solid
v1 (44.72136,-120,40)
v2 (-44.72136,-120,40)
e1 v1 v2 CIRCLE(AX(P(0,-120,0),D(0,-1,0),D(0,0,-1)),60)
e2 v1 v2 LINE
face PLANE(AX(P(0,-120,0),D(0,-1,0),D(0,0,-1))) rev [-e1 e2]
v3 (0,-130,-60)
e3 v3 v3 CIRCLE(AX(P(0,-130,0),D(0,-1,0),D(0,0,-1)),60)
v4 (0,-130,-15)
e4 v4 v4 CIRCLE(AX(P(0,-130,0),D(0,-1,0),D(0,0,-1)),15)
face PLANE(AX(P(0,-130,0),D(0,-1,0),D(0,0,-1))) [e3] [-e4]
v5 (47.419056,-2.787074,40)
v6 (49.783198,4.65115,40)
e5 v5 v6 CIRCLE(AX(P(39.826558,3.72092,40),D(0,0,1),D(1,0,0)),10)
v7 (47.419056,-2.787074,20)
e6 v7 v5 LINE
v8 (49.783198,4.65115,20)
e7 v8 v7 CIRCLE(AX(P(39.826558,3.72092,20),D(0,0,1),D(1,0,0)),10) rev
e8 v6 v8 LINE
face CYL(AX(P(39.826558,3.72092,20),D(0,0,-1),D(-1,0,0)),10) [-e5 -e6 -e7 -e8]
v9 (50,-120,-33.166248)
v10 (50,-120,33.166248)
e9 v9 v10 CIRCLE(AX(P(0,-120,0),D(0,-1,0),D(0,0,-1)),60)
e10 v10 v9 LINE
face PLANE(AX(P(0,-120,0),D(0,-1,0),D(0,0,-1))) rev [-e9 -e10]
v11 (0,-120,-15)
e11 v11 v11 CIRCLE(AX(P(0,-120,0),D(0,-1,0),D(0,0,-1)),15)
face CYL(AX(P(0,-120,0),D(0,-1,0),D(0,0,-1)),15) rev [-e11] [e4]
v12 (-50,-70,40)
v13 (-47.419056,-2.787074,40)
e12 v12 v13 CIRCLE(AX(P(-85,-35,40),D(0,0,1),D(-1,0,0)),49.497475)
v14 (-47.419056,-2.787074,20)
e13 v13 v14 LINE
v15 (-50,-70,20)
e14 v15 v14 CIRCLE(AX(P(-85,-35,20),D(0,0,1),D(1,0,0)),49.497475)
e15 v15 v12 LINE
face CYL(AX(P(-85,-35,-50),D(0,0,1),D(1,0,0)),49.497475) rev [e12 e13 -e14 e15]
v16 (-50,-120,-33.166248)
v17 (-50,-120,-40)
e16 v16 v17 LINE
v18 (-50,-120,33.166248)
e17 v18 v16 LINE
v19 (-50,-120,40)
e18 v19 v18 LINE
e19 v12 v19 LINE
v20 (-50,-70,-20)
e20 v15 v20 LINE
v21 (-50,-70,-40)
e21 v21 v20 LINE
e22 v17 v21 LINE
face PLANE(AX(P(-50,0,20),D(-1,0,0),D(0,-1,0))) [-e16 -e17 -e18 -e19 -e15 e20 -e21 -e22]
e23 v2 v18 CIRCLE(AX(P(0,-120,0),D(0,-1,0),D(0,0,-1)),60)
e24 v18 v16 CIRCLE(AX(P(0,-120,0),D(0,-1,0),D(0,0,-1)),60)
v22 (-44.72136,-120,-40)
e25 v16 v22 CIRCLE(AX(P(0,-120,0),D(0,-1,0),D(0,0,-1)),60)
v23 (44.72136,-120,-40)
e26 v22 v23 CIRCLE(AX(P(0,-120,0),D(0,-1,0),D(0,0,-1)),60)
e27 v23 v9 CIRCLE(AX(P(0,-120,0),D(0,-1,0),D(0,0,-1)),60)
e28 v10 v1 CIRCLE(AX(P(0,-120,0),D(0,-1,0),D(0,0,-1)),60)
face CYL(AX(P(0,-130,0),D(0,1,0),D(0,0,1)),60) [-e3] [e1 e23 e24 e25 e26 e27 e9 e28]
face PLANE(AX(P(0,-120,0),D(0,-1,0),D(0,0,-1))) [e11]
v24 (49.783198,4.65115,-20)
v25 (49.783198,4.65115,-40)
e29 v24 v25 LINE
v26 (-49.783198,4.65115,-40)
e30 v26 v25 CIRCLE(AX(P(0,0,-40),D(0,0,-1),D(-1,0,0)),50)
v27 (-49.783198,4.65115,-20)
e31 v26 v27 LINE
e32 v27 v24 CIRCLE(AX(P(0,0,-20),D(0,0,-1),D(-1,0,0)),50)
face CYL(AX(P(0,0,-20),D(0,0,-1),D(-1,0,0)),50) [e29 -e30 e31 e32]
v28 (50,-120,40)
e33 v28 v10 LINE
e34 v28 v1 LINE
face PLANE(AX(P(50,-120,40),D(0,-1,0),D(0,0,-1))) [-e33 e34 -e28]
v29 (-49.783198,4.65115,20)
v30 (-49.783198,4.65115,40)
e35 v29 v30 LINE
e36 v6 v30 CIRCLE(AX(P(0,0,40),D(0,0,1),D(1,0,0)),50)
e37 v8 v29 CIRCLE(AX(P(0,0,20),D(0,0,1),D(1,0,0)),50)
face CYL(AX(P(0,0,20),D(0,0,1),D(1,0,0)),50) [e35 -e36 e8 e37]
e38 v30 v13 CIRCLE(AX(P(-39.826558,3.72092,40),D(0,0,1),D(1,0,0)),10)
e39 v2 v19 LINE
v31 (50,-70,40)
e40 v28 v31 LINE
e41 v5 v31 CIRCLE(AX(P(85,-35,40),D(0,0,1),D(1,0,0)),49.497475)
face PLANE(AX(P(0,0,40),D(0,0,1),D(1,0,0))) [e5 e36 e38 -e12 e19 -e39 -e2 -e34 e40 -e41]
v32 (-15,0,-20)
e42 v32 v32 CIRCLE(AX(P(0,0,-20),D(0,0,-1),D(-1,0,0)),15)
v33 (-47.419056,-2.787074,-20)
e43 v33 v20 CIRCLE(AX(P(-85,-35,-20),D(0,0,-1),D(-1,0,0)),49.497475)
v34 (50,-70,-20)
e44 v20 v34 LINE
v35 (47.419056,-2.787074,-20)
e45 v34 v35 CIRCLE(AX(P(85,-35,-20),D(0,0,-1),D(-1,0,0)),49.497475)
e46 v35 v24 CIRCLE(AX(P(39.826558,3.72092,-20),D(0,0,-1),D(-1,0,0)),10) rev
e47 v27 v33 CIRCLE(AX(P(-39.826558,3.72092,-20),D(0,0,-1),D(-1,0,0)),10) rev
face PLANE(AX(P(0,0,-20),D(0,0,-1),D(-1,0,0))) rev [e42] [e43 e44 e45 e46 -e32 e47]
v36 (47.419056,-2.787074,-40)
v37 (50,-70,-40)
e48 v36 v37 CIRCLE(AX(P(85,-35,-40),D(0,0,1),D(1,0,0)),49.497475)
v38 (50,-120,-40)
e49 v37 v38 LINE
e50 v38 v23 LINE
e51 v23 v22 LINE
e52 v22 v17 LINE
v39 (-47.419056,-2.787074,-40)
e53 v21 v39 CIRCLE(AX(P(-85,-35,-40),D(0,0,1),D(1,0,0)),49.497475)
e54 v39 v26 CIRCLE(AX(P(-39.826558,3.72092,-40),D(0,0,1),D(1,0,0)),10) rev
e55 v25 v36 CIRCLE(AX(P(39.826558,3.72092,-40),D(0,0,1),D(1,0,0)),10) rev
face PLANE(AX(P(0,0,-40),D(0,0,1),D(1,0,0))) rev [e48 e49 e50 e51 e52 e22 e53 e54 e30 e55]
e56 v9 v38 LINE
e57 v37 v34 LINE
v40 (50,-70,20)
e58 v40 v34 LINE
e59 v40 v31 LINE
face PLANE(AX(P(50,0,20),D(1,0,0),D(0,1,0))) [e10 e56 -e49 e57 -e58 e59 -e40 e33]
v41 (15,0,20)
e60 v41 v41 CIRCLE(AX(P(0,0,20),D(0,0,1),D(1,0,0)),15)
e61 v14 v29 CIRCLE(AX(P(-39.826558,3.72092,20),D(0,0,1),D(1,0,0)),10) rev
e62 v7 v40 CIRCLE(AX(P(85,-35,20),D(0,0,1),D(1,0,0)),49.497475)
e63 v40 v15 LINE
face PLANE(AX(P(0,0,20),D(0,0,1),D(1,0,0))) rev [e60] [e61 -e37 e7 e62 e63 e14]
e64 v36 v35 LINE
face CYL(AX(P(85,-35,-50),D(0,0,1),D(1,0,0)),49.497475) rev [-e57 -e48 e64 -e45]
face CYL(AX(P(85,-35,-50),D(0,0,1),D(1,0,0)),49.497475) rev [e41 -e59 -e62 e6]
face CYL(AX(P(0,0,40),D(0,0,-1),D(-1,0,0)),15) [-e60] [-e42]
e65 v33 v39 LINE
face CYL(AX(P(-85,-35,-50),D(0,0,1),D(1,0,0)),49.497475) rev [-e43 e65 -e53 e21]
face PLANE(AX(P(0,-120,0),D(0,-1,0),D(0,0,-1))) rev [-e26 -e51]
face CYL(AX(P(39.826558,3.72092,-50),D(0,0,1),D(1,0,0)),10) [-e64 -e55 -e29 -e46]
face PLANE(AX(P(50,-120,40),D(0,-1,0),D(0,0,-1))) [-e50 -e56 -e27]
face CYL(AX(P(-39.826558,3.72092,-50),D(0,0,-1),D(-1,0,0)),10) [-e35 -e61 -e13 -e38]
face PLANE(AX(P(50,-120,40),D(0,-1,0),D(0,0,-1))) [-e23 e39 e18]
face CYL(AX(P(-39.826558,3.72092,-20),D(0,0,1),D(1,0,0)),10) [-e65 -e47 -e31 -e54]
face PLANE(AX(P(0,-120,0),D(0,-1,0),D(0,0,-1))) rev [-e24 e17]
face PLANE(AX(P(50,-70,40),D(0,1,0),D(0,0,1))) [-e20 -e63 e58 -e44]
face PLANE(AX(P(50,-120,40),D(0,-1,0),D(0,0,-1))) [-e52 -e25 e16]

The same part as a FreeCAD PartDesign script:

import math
import FreeCAD as App
import Part
import Sketcher
from FreeCAD import Vector
Q = App.Units.Quantity


def edges_at(feature, points):
    """Names of the edges that pass closest to the given points."""
    edges = feature.Shape.Edges
    near = lambda p: min(range(len(edges)), key=lambda i: edges[i].distToShape(Part.Vertex(*p))[0])
    return sorted({f"Edge{near(p) + 1}" for p in points})


def add_polygon(sketch, points):
    """Adds a closed chain of lines whose ends are joined by coincident constraints."""
    first, n = sketch.GeometryCount, len(points)
    for a, b in zip(points, points[1:] + points[:1]):
        sketch.addGeometry(Part.LineSegment(App.Vector(*a, 0), App.Vector(*b, 0)), False)
    for i in range(n):
        sketch.addConstraint(Sketcher.Constraint("Coincident", first + i, 2, first + (i + 1) % n, 1))

doc = App.newDocument("Part")
body = doc.addObject("PartDesign::Body", "Body")

sketch1 = doc.addObject("Sketcher::SketchObject", "Sketch")
body.addObject(sketch1)
sketch1.AttachmentSupport = (doc.XY_Plane, [""])
sketch1.MapMode = "FlatFace"
sketch1.addGeometry(Part.Circle(Vector(0, 0, 0), Vector(0, 0, 1), 15), False)
sketch1.addConstraint([
    Sketcher.Constraint("Coincident", 0, 3, -1, 1),
    Sketcher.Constraint("Diameter", 0, Q("30 mm")),
])
pad1 = doc.addObject("PartDesign::Pad", "Pad")
body.addObject(pad1)
pad1.Profile = sketch1
pad1.Length = 80
pad1.Midplane = True

sketch2 = doc.addObject("Sketcher::SketchObject", "Sketch001")
body.addObject(sketch2)
sketch2.AttachmentSupport = (doc.XY_Plane, [""])
sketch2.MapMode = "FlatFace"
sketch2.AttachmentOffset = App.Placement(Vector(0, 0, 40), App.Rotation())
sketch2.addGeometry([
    Part.LineSegment(Vector(50, -70, 0), Vector(50, 0, 0)),
    Part.ArcOfCircle(Part.Circle(Vector(0, 0, 0), Vector(0, 0, 1), 50), math.radians(0), math.radians(180)),
    Part.LineSegment(Vector(-50, 0, 0), Vector(-50, -70, 0)),
    Part.ArcOfCircle(Part.Circle(Vector(0, -70, 0), Vector(0, 0, 1), 50), math.radians(180), math.radians(360)),
], False)
sketch2.addConstraint([
    Sketcher.Constraint("Tangent", 0, 2, 1, 1),
    Sketcher.Constraint("Tangent", 1, 2, 2, 1),
    Sketcher.Constraint("Tangent", 2, 2, 3, 1),
    Sketcher.Constraint("Tangent", 3, 2, 0, 1),
    Sketcher.Constraint("Vertical", 0),
    Sketcher.Constraint("Vertical", 2),
    Sketcher.Constraint("Coincident", 1, 3, -1, 1),
    Sketcher.Constraint("Radius", 1, Q("50 mm")),
    Sketcher.Constraint("DistanceY", 0, 1, 0, 2, Q("70 mm")),
])
pad2 = doc.addObject("PartDesign::Pad", "Pad001")
body.addObject(pad2)
pad2.Profile = sketch2
pad2.Length = 20
pad2.Reversed = True

sketch3 = doc.addObject("Sketcher::SketchObject", "Sketch002")
body.addObject(sketch3)
sketch3.AttachmentSupport = (doc.XY_Plane, [""])
sketch3.MapMode = "FlatFace"
sketch3.AttachmentOffset = App.Placement(Vector(0, 0, -20), App.Rotation())
sketch3.addGeometry([
    Part.LineSegment(Vector(-50, -70, 0), Vector(-50, 0, 0)),
    Part.ArcOfCircle(Part.Circle(Vector(0, 0, 0), Vector(0, 0, 1), 50), math.radians(0), math.radians(180)),
    Part.LineSegment(Vector(50, 0, 0), Vector(50, -70, 0)),
    Part.ArcOfCircle(Part.Circle(Vector(0, -70, 0), Vector(0, 0, 1), 50), math.radians(180), math.radians(360)),
], False)
sketch3.addConstraint([
    Sketcher.Constraint("Tangent", 0, 2, 1, 2),
    Sketcher.Constraint("Tangent", 1, 1, 2, 1),
    Sketcher.Constraint("Tangent", 2, 2, 3, 2),
    Sketcher.Constraint("Tangent", 3, 1, 0, 1),
    Sketcher.Constraint("Vertical", 0),
    Sketcher.Constraint("Vertical", 2),
    Sketcher.Constraint("Coincident", 1, 3, -1, 1),
    Sketcher.Constraint("Radius", 1, Q("50 mm")),
    Sketcher.Constraint("DistanceY", 0, 1, 0, 2, Q("70 mm")),
])
pad3 = doc.addObject("PartDesign::Pad", "Pad002")
body.addObject(pad3)
pad3.Profile = sketch3
pad3.Length = 20
pad3.Reversed = True

sketch4 = doc.addObject("Sketcher::SketchObject", "Sketch003")
body.addObject(sketch4)
sketch4.AttachmentSupport = (doc.XY_Plane, [""])
sketch4.MapMode = "FlatFace"
sketch4.AttachmentOffset = App.Placement(Vector(0, 0, -40), App.Rotation())
add_polygon(sketch4, [(50, -70), (50, -120), (-50, -120), (-50, -70)])
sketch4.addConstraint([
    Sketcher.Constraint("Vertical", 0),
    Sketcher.Constraint("Horizontal", 1),
    Sketcher.Constraint("Vertical", 2),
    Sketcher.Constraint("Horizontal", 3),
    Sketcher.Constraint("DistanceX", 1, 2, 1, 1, Q("100 mm")),
    Sketcher.Constraint("DistanceY", 0, 2, 0, 1, Q("50 mm")),
    Sketcher.Constraint("DistanceX", -1, 1, 0, 2, Q("50 mm")),
    Sketcher.Constraint("DistanceY", 0, 2, -1, 1, Q("120 mm")),
])
pad4 = doc.addObject("PartDesign::Pad", "Pad003")
body.addObject(pad4)
pad4.Profile = sketch4
pad4.Length = 80

sketch5 = doc.addObject("Sketcher::SketchObject", "Sketch004")
body.addObject(sketch5)
sketch5.AttachmentSupport = (doc.XZ_Plane, [""])
sketch5.MapMode = "FlatFace"
sketch5.AttachmentOffset = App.Placement(Vector(0, 0, 120), App.Rotation())
sketch5.addGeometry(Part.Circle(Vector(0, 0, 0), Vector(0, 0, 1), 60), False)
sketch5.addConstraint([
    Sketcher.Constraint("Coincident", 0, 3, -1, 1),
    Sketcher.Constraint("Diameter", 0, Q("120 mm")),
])
pad5 = doc.addObject("PartDesign::Pad", "Pad004")
body.addObject(pad5)
pad5.Profile = sketch5
pad5.Length = 10

sketch6 = doc.addObject("Sketcher::SketchObject", "Sketch005")
body.addObject(sketch6)
sketch6.AttachmentSupport = (doc.XZ_Plane, [""])
sketch6.MapMode = "FlatFace"
sketch6.AttachmentOffset = App.Placement(Vector(0, 0, 130), App.Rotation())
sketch6.addGeometry(Part.Circle(Vector(0, 0, 0), Vector(0, 0, 1), 15), False)
sketch6.addConstraint([
    Sketcher.Constraint("Coincident", 0, 3, -1, 1),
    Sketcher.Constraint("Diameter", 0, Q("30 mm")),
])
pocket1 = doc.addObject("PartDesign::Pocket", "Pocket")
body.addObject(pocket1)
pocket1.Profile = sketch6
pocket1.Length = 10

sketch7 = doc.addObject("Sketcher::SketchObject", "Sketch006")
body.addObject(sketch7)
sketch7.AttachmentSupport = (doc.XY_Plane, [""])
sketch7.MapMode = "FlatFace"
sketch7.AttachmentOffset = App.Placement(Vector(0, 0, 40), App.Rotation())
sketch7.addGeometry([
    Part.LineSegment(Vector(-50, 0, 0), Vector(-50, -70, 0)),
    Part.ArcOfCircle(Part.Circle(Vector(-85, -35, 0), Vector(0, 0, 1), 49.497475), math.radians(-45), math.radians(45)),
], False)
sketch7.addConstraint([
    Sketcher.Constraint("Coincident", 0, 1, 1, 2),
    Sketcher.Constraint("Coincident", 1, 1, 0, 2),
    Sketcher.Constraint("Vertical", 0),
    Sketcher.Constraint("PointOnObject", 0, 1, -1),
    Sketcher.Constraint("DistanceY", 0, 2, 0, 1, Q("70 mm")),
    Sketcher.Constraint("DistanceX", 1, 3, -1, 1, Q("85 mm")),
    Sketcher.Constraint("DistanceX", 0, 1, -1, 1, Q("50 mm")),
])
pocket2 = doc.addObject("PartDesign::Pocket", "Pocket001")
body.addObject(pocket2)
pocket2.Profile = sketch7
pocket2.Length = 90

sketch8 = doc.addObject("Sketcher::SketchObject", "Sketch007")
body.addObject(sketch8)
sketch8.AttachmentSupport = (doc.XY_Plane, [""])
sketch8.MapMode = "FlatFace"
sketch8.AttachmentOffset = App.Placement(Vector(0, 0, 40), App.Rotation())
sketch8.addGeometry([
    Part.LineSegment(Vector(50, -70, 0), Vector(50, 0, 0)),
    Part.ArcOfCircle(Part.Circle(Vector(85, -35, 0), Vector(0, 0, 1), 49.497475), math.radians(135), math.radians(225)),
], False)
sketch8.addConstraint([
    Sketcher.Constraint("Coincident", 0, 1, 1, 2),
    Sketcher.Constraint("Coincident", 1, 1, 0, 2),
    Sketcher.Constraint("Vertical", 0),
    Sketcher.Constraint("PointOnObject", 1, 1, -1),
    Sketcher.Constraint("DistanceY", 0, 1, 0, 2, Q("70 mm")),
    Sketcher.Constraint("DistanceX", -1, 1, 1, 3, Q("85 mm")),
    Sketcher.Constraint("DistanceX", -1, 1, 0, 1, Q("50 mm")),
])
pocket3 = doc.addObject("PartDesign::Pocket", "Pocket002")
body.addObject(pocket3)
pocket3.Profile = sketch8
pocket3.Length = 90
doc.recompute()

fillet = doc.addObject("PartDesign::Fillet", "Fillet")
body.addObject(fillet)
fillet.Base = (pocket3, edges_at(pocket3, [
    (50, 0, -30),
    (-50, 0, -30),
    (-50, 0, 30),
    (50, 0, 30),
]))
fillet.Radius = 10

doc.recompute()
